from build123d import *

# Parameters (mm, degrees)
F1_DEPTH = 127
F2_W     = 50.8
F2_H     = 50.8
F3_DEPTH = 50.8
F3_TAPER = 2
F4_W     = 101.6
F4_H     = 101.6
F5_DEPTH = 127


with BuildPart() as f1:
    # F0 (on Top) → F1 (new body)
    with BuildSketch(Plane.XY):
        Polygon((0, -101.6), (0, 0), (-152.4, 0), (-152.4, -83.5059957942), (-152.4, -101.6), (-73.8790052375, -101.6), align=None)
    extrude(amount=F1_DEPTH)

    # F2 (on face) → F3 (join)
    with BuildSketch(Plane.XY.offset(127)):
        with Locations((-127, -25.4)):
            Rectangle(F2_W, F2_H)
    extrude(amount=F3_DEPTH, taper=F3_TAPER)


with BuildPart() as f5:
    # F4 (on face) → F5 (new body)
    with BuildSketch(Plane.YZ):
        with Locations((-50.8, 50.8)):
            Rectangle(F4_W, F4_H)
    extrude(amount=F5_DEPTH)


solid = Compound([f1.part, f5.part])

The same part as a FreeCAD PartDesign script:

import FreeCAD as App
import Part
import Sketcher
from FreeCAD import Vector
Q = App.Units.Quantity


def add_polygon(sketch, points):
    """Adds a closed chain of lines whose ends are joined by coincident constraints."""
    first, n = sketch.GeometryCount, len(points)
    for a, b in zip(points, points[1:] + points[:1]):
        sketch.addGeometry(Part.LineSegment(App.Vector(*a, 0), App.Vector(*b, 0)), False)
    for i in range(n):
        sketch.addConstraint(Sketcher.Constraint("Coincident", first + i, 2, first + (i + 1) % n, 1))

doc = App.newDocument("Part")
body = doc.addObject("PartDesign::Body", "Body")

sketch1 = body.newObject("Sketcher::SketchObject", "Sketch")
sketch1.AttachmentSupport = (doc.getObject("XY_Plane"), [""])
sketch1.MapMode = "FlatFace"
add_polygon(sketch1, [(0, -101.6), (0, 0), (-152.4, 0), (-152.4, -101.6)])
sketch1.addConstraint([
    Sketcher.Constraint("Vertical", 0),
    Sketcher.Constraint("Horizontal", 1),
    Sketcher.Constraint("Vertical", 2),
    Sketcher.Constraint("Horizontal", 3),
    Sketcher.Constraint("Coincident", 0, 2, -1, 1),
    Sketcher.Constraint("DistanceX", 1, 2, 1, 1, Q("6 in")),
    Sketcher.Constraint("DistanceY", 0, 1, 0, 2, Q("4 in")),
])
pad1 = body.newObject("PartDesign::Pad", "Pad")
pad1.Profile = sketch1
pad1.Length = Q("5 in")

sketch2 = body.newObject("Sketcher::SketchObject", "Sketch001")
sketch2.AttachmentSupport = (doc.getObject("XY_Plane"), [""])
sketch2.MapMode = "FlatFace"
sketch2.AttachmentOffset = App.Placement(Vector(0, 0, 5 * 25.4), App.Rotation())
add_polygon(sketch2, [(-152.4, 0), (-152.4, -50.8), (-101.6, -50.8), (-101.6, 0)])
sketch2.addConstraint([
    Sketcher.Constraint("Vertical", 0),
    Sketcher.Constraint("Horizontal", 1),
    Sketcher.Constraint("Vertical", 2),
    Sketcher.Constraint("Horizontal", 3),
    Sketcher.Constraint("PointOnObject", 2, 2, -1),
    Sketcher.Constraint("Equal", 3, 0),
    Sketcher.Constraint("DistanceX", 1, 1, 1, 2, Q("2 in")),
    Sketcher.Constraint("DistanceX", 0, 2, -1, 1, Q("6 in")),
])
pad2 = body.newObject("PartDesign::Pad", "Pad001")
pad2.Profile = sketch2
pad2.Length = Q("2 in")
pad2.TaperAngle = -2
body2 = doc.addObject("PartDesign::Body", "Body001")

sketch3 = body2.newObject("Sketcher::SketchObject", "Sketch002")
sketch3.AttachmentSupport = (doc.getObject("YZ_Plane001"), [""])
sketch3.MapMode = "FlatFace"
add_polygon(sketch3, [(-101.6, 101.6), (-101.6, 0), (0, 0), (0, 101.6)])
sketch3.addConstraint([
    Sketcher.Constraint("Vertical", 0),
    Sketcher.Constraint("Horizontal", 1),
    Sketcher.Constraint("Vertical", 2),
    Sketcher.Constraint("Horizontal", 3),
    Sketcher.Constraint("Coincident", 1, 2, -1, 1),
    Sketcher.Constraint("Equal", 3, 0),
    Sketcher.Constraint("DistanceX", 1, 1, 1, 2, Q("4 in")),
])
pad3 = body2.newObject("PartDesign::Pad", "Pad002")
pad3.Profile = sketch3
pad3.Length = Q("5 in")

doc.recompute()
